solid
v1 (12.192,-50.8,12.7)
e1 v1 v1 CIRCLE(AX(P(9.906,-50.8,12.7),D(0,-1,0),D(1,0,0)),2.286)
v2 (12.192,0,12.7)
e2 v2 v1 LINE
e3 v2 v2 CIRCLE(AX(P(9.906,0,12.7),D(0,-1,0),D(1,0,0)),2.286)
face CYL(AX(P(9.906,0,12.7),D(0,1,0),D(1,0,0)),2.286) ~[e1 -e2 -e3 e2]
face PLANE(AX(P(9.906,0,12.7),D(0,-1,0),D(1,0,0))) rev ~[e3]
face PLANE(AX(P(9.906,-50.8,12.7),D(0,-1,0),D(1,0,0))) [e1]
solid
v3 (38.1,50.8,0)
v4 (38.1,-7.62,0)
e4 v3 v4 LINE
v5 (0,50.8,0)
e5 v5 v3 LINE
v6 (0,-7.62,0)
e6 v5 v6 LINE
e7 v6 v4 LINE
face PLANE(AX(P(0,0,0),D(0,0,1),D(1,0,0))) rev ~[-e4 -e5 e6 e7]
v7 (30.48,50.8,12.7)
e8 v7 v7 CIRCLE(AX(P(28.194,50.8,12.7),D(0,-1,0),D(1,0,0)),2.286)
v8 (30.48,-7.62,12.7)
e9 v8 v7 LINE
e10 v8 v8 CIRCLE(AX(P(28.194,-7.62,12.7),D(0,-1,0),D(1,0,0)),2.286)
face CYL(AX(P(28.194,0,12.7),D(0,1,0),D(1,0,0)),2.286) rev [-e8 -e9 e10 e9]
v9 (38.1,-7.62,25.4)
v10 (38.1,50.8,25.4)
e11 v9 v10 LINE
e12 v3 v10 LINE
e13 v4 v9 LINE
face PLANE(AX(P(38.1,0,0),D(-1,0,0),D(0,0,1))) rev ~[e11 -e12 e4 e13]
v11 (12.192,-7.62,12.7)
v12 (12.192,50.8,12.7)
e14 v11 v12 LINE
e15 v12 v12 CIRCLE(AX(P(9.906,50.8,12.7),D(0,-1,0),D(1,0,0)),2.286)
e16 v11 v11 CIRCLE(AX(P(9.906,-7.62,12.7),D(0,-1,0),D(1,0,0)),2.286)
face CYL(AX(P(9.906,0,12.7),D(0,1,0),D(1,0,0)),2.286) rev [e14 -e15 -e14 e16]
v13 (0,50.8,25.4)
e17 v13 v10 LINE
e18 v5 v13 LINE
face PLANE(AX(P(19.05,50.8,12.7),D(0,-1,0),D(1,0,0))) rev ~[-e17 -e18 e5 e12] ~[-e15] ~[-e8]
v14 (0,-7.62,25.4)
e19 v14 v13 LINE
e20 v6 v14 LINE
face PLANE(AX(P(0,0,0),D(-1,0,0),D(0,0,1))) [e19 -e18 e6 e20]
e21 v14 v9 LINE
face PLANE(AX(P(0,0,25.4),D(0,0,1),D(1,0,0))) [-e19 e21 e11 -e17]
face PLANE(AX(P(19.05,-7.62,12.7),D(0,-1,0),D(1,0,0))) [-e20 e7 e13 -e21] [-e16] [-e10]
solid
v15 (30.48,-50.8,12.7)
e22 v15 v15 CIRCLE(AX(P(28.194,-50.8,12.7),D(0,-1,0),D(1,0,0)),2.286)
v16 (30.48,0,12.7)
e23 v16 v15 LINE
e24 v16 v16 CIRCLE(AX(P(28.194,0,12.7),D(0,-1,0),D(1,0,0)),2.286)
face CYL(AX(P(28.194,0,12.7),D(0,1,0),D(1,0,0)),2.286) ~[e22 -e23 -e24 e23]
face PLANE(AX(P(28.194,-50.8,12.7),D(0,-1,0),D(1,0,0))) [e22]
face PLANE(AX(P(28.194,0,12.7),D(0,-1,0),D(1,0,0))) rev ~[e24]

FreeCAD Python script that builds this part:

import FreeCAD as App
import Part
import Sketcher
Q = App.Units.Quantity

doc = App.newDocument("Part")
body = doc.addObject("PartDesign::Body", "Body")

# Sketch on XZ plane
sketch1 = doc.addObject("Sketcher::SketchObject", "Sketch")
body.addObject(sketch1)
sketch1.AttachmentSupport = (doc.XZ_Plane, [""])
sketch1.MapMode = "FlatFace"
sketch1.addGeometry(Part.Circle(App.Vector(9.9, 12.7, 0), App.Vector(0, 0, 1), 2.3), False)
sketch1.addConstraint([
    Sketcher.Constraint("Diameter", 0, Q("0.18 in")),
    Sketcher.Constraint("DistanceY", -1, 1, 0, 3, Q("0.5 in")),
    Sketcher.Constraint("DistanceX", -1, 1, 0, 3, Q("0.39 in")),
])
pad1 = doc.addObject("PartDesign::Pad", "Pad")
body.addObject(pad1)
pad1.Profile = sketch1
pad1.Length = Q("2 in")
body2 = doc.addObject("PartDesign::Body", "Body001")

# Sketch on XZ plane
sketch2 = doc.addObject("Sketcher::SketchObject", "Sketch001")
body2.addObject(sketch2)
sketch2.AttachmentSupport = (doc.getObject("XZ_Plane001"), [""])
sketch2.MapMode = "FlatFace"
sketch2.addGeometry(Part.Circle(App.Vector(28.2, 12.7, 0), App.Vector(0, 0, 1), 2.3), False)
sketch2.addConstraint([
    Sketcher.Constraint("Diameter", 0, Q("0.18 in")),
    Sketcher.Constraint("DistanceY", -1, 1, 0, 3, Q("0.5 in")),
    Sketcher.Constraint("DistanceX", -1, 1, 0, 3, Q("1.11 in")),
])
pad2 = doc.addObject("PartDesign::Pad", "Pad001")
body2.addObject(pad2)
pad2.Profile = sketch2
pad2.Length = Q("2 in")
body3 = doc.addObject("PartDesign::Body", "Body002")

# Sketch on XZ plane
sketch3 = doc.addObject("Sketcher::SketchObject", "Sketch002")
body3.addObject(sketch3)
sketch3.AttachmentSupport = (doc.getObject("XZ_Plane002"), [""])
sketch3.MapMode = "FlatFace"
sketch3.addGeometry([
    Part.LineSegment(App.Vector(0, 25.4, 0), App.Vector(0, 0, 0)),  # 0
    Part.LineSegment(App.Vector(0, 0, 0), App.Vector(38.1, 0, 0)),  # 1
    Part.LineSegment(App.Vector(38.1, 0, 0), App.Vector(38.1, 25.4, 0)),  # 2
    Part.LineSegment(App.Vector(38.1, 25.4, 0), App.Vector(0, 25.4, 0)),  # 3
    Part.Circle(App.Vector(9.9, 12.7, 0), App.Vector(0, 0, 1), 2.3),  # 4
    Part.Circle(App.Vector(28.2, 12.7, 0), App.Vector(0, 0, 1), 2.3),  # 5
], False)
sketch3.addConstraint([
    Sketcher.Constraint("Coincident", 0, 2, 1, 1),
    Sketcher.Constraint("Coincident", 1, 2, 2, 1),
    Sketcher.Constraint("Coincident", 2, 2, 3, 1),
    Sketcher.Constraint("Coincident", 3, 2, 0, 1),
    Sketcher.Constraint("Vertical", 0),
    Sketcher.Constraint("Horizontal", 1),
    Sketcher.Constraint("Vertical", 2),
    Sketcher.Constraint("Horizontal", 3),
    Sketcher.Constraint("Coincident", 0, 2, -1, 1),
    Sketcher.Constraint("Equal", 4, 5),
    Sketcher.Constraint("Horizontal", 4, 3, 5, 3),
    Sketcher.Constraint("Diameter", 4, Q("0.18 in")),
    Sketcher.Constraint("DistanceY", 0, 2, 0, 1, Q("1 in")),
    Sketcher.Constraint("DistanceX", 1, 1, 1, 2, Q("1.5 in")),
    Sketcher.Constraint("DistanceY", -1, 1, 4, 3, Q("0.5 in")),
    Sketcher.Constraint("DistanceX", -1, 1, 4, 3, Q("0.39 in")),
    Sketcher.Constraint("DistanceX", -1, 1, 5, 3, Q("1.11 in")),
])
pad3 = doc.addObject("PartDesign::Pad", "Pad002")
body3.addObject(pad3)
pad3.Profile = sketch3
pad3.Type = "TwoLengths"
pad3.Length = Q("2 in")
pad3.Length2 = Q("0.3 in")
pad3.Reversed = True

doc.recompute()
